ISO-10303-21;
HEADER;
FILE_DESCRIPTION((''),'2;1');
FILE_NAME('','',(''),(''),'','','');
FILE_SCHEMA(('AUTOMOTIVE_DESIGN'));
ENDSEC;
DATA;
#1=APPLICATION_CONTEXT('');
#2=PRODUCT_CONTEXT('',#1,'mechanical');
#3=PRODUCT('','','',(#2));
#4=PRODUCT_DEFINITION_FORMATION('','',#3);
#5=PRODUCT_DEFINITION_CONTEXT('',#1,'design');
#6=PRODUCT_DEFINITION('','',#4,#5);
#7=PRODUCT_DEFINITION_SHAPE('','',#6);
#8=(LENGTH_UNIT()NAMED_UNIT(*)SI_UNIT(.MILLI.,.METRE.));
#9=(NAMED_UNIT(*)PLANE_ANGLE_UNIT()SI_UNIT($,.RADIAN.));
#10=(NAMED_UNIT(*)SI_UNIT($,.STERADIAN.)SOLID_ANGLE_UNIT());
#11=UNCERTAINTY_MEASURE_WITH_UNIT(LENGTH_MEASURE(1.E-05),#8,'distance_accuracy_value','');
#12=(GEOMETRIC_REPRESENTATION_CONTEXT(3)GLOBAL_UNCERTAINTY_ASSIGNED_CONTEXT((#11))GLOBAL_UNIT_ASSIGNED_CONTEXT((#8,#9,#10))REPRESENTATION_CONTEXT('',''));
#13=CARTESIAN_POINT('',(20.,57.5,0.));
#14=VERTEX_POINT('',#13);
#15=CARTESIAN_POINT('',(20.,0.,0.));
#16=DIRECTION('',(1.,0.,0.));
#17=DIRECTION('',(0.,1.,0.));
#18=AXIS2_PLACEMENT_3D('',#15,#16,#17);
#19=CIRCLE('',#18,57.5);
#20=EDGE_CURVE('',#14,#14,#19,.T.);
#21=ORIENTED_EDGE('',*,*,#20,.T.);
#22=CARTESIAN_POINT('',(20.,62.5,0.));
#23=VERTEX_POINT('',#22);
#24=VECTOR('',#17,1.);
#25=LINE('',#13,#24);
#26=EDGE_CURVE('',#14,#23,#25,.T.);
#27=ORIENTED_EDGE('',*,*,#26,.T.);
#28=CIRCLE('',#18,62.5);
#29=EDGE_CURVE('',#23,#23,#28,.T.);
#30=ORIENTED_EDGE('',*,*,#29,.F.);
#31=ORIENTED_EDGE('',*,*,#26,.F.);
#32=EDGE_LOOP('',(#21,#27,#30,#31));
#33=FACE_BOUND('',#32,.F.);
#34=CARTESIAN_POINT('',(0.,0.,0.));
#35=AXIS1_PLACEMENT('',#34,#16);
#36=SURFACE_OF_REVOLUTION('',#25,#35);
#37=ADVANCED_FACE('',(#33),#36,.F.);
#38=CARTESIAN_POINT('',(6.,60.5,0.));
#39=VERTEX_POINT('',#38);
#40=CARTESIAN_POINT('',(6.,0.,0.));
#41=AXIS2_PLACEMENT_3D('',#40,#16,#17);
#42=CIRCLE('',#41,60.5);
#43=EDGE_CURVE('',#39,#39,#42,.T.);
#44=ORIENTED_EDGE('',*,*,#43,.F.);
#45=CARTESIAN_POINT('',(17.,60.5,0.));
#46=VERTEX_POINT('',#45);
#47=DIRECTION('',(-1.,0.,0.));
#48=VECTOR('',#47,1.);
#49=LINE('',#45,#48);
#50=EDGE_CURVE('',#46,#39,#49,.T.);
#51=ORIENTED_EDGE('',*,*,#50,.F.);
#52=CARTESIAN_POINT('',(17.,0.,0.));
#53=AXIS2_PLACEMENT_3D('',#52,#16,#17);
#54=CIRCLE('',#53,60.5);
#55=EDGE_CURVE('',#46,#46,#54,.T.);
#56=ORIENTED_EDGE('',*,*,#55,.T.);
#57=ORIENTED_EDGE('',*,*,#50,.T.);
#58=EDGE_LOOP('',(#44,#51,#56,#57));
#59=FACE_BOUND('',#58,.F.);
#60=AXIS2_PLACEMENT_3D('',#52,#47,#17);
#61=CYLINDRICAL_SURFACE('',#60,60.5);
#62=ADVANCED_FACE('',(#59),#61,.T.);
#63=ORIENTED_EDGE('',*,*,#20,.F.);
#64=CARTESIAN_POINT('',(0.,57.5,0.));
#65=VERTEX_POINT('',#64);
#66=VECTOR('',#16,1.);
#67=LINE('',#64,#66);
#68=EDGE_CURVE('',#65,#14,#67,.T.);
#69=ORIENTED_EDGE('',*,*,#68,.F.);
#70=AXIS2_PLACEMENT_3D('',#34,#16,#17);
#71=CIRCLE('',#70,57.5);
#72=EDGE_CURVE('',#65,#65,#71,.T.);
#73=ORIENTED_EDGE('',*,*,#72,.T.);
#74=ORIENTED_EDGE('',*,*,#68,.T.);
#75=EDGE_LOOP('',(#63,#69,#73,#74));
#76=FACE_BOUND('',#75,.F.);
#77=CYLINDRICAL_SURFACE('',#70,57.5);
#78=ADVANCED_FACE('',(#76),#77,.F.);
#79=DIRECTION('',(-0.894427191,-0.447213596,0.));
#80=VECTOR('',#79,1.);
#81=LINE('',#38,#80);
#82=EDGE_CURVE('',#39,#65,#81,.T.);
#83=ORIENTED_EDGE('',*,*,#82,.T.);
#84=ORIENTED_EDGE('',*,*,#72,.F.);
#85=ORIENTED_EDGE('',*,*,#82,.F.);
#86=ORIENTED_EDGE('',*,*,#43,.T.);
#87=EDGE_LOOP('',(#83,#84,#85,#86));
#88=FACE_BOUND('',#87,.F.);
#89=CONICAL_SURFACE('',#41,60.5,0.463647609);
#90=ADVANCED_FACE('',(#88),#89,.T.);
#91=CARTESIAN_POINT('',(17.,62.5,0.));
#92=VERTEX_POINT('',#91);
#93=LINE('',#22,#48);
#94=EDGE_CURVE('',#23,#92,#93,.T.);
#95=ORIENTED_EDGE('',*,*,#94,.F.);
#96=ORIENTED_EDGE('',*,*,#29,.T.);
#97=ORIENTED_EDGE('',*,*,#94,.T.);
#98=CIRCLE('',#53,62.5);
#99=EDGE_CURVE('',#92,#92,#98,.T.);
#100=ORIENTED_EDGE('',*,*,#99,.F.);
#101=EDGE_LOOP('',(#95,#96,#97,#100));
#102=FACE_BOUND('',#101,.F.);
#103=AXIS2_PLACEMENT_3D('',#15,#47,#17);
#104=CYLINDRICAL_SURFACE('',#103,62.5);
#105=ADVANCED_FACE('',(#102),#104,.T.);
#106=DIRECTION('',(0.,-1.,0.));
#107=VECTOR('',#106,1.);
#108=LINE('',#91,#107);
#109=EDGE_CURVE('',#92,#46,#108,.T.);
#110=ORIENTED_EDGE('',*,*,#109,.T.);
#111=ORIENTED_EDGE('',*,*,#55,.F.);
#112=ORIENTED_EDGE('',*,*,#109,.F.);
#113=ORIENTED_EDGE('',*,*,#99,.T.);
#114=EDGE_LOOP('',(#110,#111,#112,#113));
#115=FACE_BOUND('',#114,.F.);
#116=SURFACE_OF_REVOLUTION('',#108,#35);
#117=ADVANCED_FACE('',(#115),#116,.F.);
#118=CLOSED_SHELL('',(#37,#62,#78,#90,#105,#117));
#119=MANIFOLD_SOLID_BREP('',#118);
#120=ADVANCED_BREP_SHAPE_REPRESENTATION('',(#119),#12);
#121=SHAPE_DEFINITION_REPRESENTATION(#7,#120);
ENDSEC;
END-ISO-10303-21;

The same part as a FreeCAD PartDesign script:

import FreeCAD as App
import Part
import Sketcher

V = App.Vector

doc = App.newDocument("Part")
body = doc.addObject("PartDesign::Body", "Body")

sketch1 = body.newObject("Sketcher::SketchObject", "Sketch")
sketch1.AttachmentSupport = (doc.getObject("XZ_Plane"), [""])
sketch1.MapMode = "FlatFace"
sketch1.addGeometry(Part.LineSegment(V(6, 60.5, 0), V(0, 57.5, 0)), False)
sketch1.addGeometry(Part.LineSegment(V(0, 57.5, 0), V(20, 57.5, 0)), False)
sketch1.addGeometry(Part.LineSegment(V(20, 57.5, 0), V(20, 62.5, 0)), False)
sketch1.addGeometry(Part.LineSegment(V(20, 62.5, 0), V(17, 62.5, 0)), False)
sketch1.addGeometry(Part.LineSegment(V(17, 62.5, 0), V(17, 60.5, 0)), False)
sketch1.addGeometry(Part.LineSegment(V(17, 60.5, 0), V(6, 60.5, 0)), False)
sketch1.addConstraint(Sketcher.Constraint("Coincident", 0, 2, 1, 1))
sketch1.addConstraint(Sketcher.Constraint("Coincident", 1, 2, 2, 1))
sketch1.addConstraint(Sketcher.Constraint("Coincident", 2, 2, 3, 1))
sketch1.addConstraint(Sketcher.Constraint("Coincident", 3, 2, 4, 1))
sketch1.addConstraint(Sketcher.Constraint("Coincident", 4, 2, 5, 1))
sketch1.addConstraint(Sketcher.Constraint("Coincident", 5, 2, 0, 1))
sketch1.addConstraint(Sketcher.Constraint("Horizontal", 1))
sketch1.addConstraint(Sketcher.Constraint("Vertical", 2))
sketch1.addConstraint(Sketcher.Constraint("Horizontal", 3))
sketch1.addConstraint(Sketcher.Constraint("Vertical", 4))
sketch1.addConstraint(Sketcher.Constraint("Horizontal", 5))
sketch1.addConstraint(Sketcher.Constraint("PointOnObject", 0, 2, -2))
sketch1.addConstraint(Sketcher.Constraint("DistanceX", 1, 1, 1, 2, 20.0))
sketch1.addConstraint(Sketcher.Constraint("DistanceX", 3, 2, 3, 1, 3.0))
sketch1.addConstraint(Sketcher.Constraint("DistanceX", 5, 2, 5, 1, 11.0))
sketch1.addConstraint(Sketcher.Constraint("DistanceY", 2, 1, 2, 2, 5.0))
sketch1.addConstraint(Sketcher.Constraint("DistanceY", 4, 2, 4, 1, 2.0))
sketch1.addConstraint(Sketcher.Constraint("DistanceY", -1, 1, 0, 2, 57.5))

sketch2 = body.newObject("Sketcher::SketchObject", "Sketch001")
sketch2.AttachmentSupport = (doc.getObject("YZ_Plane"), [""])
sketch2.MapMode = "FlatFace"
sketch2.addGeometry(Part.Circle(V(0, 0, 0), V(0, 0, 1), 58), False)
sketch2.addConstraint(Sketcher.Constraint("Coincident", 0, 3, -1, 1))
sketch2.addConstraint(Sketcher.Constraint("Diameter", 0, 115.0))
doc.recompute()

additivepipe = body.newObject("PartDesign::AdditivePipe", "AdditivePipe")
additivepipe.Profile = sketch1
additivepipe.Spine = (sketch2, ["Edge1"])

doc.recompute()
